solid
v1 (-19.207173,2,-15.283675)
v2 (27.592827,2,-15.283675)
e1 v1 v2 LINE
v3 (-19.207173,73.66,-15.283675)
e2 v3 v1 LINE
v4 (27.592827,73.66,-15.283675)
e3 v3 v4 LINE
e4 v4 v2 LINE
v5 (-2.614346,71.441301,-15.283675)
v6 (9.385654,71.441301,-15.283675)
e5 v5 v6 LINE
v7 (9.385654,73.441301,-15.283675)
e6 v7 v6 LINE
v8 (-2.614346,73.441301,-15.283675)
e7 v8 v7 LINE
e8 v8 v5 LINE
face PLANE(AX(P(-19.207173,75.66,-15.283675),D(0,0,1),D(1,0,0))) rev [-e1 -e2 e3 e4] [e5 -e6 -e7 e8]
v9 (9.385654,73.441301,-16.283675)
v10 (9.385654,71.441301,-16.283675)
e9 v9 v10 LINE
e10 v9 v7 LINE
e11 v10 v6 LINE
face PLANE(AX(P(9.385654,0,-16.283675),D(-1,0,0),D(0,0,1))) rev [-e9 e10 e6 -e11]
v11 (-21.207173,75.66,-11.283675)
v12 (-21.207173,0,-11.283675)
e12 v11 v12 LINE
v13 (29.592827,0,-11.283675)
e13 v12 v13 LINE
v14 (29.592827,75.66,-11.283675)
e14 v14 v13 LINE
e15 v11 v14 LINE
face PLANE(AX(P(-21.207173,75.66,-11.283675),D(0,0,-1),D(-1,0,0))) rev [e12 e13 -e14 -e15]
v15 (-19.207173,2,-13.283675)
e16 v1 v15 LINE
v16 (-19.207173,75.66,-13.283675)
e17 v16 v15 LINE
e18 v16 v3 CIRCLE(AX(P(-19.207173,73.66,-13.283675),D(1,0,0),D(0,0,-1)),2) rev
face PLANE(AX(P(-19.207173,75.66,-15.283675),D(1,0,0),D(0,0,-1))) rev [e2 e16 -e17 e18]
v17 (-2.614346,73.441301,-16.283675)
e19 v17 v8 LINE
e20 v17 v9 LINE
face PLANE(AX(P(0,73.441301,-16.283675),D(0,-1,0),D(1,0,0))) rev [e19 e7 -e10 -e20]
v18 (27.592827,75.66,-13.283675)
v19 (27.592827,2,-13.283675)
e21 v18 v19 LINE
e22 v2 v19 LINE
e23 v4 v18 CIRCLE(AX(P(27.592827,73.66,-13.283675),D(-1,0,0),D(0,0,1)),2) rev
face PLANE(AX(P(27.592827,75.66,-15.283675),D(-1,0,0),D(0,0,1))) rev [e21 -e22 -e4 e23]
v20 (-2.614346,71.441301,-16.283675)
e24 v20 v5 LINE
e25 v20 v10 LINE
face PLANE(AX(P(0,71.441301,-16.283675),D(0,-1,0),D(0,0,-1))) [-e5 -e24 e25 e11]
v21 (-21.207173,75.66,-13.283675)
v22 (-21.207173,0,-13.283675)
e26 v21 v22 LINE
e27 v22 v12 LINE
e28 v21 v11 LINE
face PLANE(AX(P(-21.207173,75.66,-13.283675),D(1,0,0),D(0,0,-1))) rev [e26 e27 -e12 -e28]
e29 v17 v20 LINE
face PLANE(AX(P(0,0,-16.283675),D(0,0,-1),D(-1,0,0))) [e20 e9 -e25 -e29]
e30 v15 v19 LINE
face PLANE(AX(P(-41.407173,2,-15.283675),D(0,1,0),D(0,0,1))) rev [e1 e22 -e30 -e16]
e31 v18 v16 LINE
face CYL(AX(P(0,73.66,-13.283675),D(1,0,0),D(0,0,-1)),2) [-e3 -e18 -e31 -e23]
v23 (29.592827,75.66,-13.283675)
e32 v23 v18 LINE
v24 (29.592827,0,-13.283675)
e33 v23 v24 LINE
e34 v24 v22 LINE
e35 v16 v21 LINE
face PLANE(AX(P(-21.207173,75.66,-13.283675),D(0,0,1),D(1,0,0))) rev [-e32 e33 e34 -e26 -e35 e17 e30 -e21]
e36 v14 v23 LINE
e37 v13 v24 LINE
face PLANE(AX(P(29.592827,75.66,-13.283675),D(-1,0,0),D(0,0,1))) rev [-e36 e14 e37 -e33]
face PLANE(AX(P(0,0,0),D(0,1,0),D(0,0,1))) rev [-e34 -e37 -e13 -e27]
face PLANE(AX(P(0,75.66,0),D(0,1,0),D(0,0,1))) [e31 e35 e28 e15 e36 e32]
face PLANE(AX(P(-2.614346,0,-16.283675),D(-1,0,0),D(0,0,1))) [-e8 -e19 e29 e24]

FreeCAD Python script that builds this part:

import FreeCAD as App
import Part
import Sketcher

V = App.Vector
Q = App.Units.Quantity


def edges_at(feature, points):
    """Names of the edges that pass closest to the given points."""
    edges = feature.Shape.Edges
    near = lambda p: min(range(len(edges)), key=lambda i: edges[i].distToShape(Part.Vertex(*p))[0])
    return sorted({f"Edge{near(p) + 1}" for p in points})


def add_polygon(sketch, points):
    """Adds a closed chain of lines whose ends are joined by coincident constraints."""
    first, n = sketch.GeometryCount, len(points)
    for a, b in zip(points, points[1:] + points[:1]):
        sketch.addGeometry(Part.LineSegment(App.Vector(*a, 0), App.Vector(*b, 0)), False)
    for i in range(n):
        sketch.addConstraint(Sketcher.Constraint("Coincident", first + i, 2, first + (i + 1) % n, 1))

doc = App.newDocument("Part")
body = doc.addObject("PartDesign::Body", "Body")

sketch1 = body.newObject("Sketcher::SketchObject", "Sketch")
sketch1.AttachmentSupport = (doc.getObject("XZ_Plane"), [""])
sketch1.MapMode = "FlatFace"
add_polygon(sketch1, [(27.6, -15.3), (-19.2, -15.3), (-19.2, -13.3), (-21.2, -13.3), (-21.2, -11.3), (29.6, -11.3), (29.6, -13.3), (27.6, -13.3)])
sketch1.addConstraint([
    Sketcher.Constraint("Horizontal", 0),
    Sketcher.Constraint("Vertical", 1),
    Sketcher.Constraint("Horizontal", 2),
    Sketcher.Constraint("Vertical", 3),
    Sketcher.Constraint("Horizontal", 4),
    Sketcher.Constraint("Vertical", 5),
    Sketcher.Constraint("Horizontal", 6),
    Sketcher.Constraint("Vertical", 7),
    Sketcher.Constraint("Horizontal", 2, 2, 5, 2),
    Sketcher.Constraint("Equal", 2, 6),
    Sketcher.Constraint("Equal", 6, 1),
    Sketcher.Constraint("Equal", 1, 3),
    Sketcher.Constraint("DistanceX", 2, 2, 2, 1, Q("2 mm")),
    Sketcher.Constraint("DistanceX", 0, 2, 0, 1, Q("46.8 mm")),
    Sketcher.Constraint("DistanceX", 0, 2, -1, 1, Q("19.207173 mm")),
    Sketcher.Constraint("DistanceY", 0, 2, -1, 1, Q("15.283675 mm")),
])
pad1 = body.newObject("PartDesign::Pad", "Pad")
pad1.Profile = sketch1
pad1.Length = 75.66
pad1.Reversed = True

sketch2 = body.newObject("Sketcher::SketchObject", "Sketch001")
sketch2.AttachmentSupport = (doc.getObject("YZ_Plane"), [""])
sketch2.MapMode = "FlatFace"
sketch2.AttachmentOffset = App.Placement(V(0, 0, 27.592827), App.Rotation())
add_polygon(sketch2, [(2, -13.3), (0, -13.3), (0, -15.3), (2, -15.3)])
sketch2.addConstraint([
    Sketcher.Constraint("Horizontal", 0),
    Sketcher.Constraint("Vertical", 1),
    Sketcher.Constraint("Horizontal", 2),
    Sketcher.Constraint("Vertical", 3),
    Sketcher.Constraint("PointOnObject", 0, 2, -2),
    Sketcher.Constraint("Equal", 2, 1),
    Sketcher.Constraint("DistanceX", 0, 2, 0, 1, Q("2 mm")),
    Sketcher.Constraint("DistanceY", 0, 2, -1, 1, Q("13.283675 mm")),
])
pocket1 = body.newObject("PartDesign::Pocket", "Pocket")
pocket1.Profile = sketch2
pocket1.Length = 69
doc.recompute()

fillet = body.newObject("PartDesign::Fillet", "Fillet")
fillet.Base = (pocket1, edges_at(pocket1, [(4.193, 75.66, -15.284)]))
fillet.Radius = 2

sketch3 = body.newObject("Sketcher::SketchObject", "Sketch002")
sketch3.AttachmentSupport = (doc.getObject("XY_Plane"), [""])
sketch3.MapMode = "FlatFace"
sketch3.AttachmentOffset = App.Placement(V(0, 0, -15.283675), App.Rotation())
add_polygon(sketch3, [(-2.6, 73.4), (9.4, 73.4), (9.4, 71.4), (-2.6, 71.4)])
sketch3.addConstraint([
    Sketcher.Constraint("Horizontal", 0),
    Sketcher.Constraint("Vertical", 1),
    Sketcher.Constraint("Horizontal", 2),
    Sketcher.Constraint("Vertical", 3),
    Sketcher.Constraint("DistanceX", 0, 1, 0, 2, Q("12 mm")),
    Sketcher.Constraint("DistanceY", 1, 2, 1, 1, Q("2 mm")),
    Sketcher.Constraint("DistanceY", -1, 1, 0, 2, Q("73.441301 mm")),
    Sketcher.Constraint("DistanceX", -1, 1, 0, 2, Q("9.385654 mm")),
])
pad2 = body.newObject("PartDesign::Pad", "Pad001")
pad2.Profile = sketch3
pad2.Length = 1
pad2.Reversed = True

doc.recompute()
